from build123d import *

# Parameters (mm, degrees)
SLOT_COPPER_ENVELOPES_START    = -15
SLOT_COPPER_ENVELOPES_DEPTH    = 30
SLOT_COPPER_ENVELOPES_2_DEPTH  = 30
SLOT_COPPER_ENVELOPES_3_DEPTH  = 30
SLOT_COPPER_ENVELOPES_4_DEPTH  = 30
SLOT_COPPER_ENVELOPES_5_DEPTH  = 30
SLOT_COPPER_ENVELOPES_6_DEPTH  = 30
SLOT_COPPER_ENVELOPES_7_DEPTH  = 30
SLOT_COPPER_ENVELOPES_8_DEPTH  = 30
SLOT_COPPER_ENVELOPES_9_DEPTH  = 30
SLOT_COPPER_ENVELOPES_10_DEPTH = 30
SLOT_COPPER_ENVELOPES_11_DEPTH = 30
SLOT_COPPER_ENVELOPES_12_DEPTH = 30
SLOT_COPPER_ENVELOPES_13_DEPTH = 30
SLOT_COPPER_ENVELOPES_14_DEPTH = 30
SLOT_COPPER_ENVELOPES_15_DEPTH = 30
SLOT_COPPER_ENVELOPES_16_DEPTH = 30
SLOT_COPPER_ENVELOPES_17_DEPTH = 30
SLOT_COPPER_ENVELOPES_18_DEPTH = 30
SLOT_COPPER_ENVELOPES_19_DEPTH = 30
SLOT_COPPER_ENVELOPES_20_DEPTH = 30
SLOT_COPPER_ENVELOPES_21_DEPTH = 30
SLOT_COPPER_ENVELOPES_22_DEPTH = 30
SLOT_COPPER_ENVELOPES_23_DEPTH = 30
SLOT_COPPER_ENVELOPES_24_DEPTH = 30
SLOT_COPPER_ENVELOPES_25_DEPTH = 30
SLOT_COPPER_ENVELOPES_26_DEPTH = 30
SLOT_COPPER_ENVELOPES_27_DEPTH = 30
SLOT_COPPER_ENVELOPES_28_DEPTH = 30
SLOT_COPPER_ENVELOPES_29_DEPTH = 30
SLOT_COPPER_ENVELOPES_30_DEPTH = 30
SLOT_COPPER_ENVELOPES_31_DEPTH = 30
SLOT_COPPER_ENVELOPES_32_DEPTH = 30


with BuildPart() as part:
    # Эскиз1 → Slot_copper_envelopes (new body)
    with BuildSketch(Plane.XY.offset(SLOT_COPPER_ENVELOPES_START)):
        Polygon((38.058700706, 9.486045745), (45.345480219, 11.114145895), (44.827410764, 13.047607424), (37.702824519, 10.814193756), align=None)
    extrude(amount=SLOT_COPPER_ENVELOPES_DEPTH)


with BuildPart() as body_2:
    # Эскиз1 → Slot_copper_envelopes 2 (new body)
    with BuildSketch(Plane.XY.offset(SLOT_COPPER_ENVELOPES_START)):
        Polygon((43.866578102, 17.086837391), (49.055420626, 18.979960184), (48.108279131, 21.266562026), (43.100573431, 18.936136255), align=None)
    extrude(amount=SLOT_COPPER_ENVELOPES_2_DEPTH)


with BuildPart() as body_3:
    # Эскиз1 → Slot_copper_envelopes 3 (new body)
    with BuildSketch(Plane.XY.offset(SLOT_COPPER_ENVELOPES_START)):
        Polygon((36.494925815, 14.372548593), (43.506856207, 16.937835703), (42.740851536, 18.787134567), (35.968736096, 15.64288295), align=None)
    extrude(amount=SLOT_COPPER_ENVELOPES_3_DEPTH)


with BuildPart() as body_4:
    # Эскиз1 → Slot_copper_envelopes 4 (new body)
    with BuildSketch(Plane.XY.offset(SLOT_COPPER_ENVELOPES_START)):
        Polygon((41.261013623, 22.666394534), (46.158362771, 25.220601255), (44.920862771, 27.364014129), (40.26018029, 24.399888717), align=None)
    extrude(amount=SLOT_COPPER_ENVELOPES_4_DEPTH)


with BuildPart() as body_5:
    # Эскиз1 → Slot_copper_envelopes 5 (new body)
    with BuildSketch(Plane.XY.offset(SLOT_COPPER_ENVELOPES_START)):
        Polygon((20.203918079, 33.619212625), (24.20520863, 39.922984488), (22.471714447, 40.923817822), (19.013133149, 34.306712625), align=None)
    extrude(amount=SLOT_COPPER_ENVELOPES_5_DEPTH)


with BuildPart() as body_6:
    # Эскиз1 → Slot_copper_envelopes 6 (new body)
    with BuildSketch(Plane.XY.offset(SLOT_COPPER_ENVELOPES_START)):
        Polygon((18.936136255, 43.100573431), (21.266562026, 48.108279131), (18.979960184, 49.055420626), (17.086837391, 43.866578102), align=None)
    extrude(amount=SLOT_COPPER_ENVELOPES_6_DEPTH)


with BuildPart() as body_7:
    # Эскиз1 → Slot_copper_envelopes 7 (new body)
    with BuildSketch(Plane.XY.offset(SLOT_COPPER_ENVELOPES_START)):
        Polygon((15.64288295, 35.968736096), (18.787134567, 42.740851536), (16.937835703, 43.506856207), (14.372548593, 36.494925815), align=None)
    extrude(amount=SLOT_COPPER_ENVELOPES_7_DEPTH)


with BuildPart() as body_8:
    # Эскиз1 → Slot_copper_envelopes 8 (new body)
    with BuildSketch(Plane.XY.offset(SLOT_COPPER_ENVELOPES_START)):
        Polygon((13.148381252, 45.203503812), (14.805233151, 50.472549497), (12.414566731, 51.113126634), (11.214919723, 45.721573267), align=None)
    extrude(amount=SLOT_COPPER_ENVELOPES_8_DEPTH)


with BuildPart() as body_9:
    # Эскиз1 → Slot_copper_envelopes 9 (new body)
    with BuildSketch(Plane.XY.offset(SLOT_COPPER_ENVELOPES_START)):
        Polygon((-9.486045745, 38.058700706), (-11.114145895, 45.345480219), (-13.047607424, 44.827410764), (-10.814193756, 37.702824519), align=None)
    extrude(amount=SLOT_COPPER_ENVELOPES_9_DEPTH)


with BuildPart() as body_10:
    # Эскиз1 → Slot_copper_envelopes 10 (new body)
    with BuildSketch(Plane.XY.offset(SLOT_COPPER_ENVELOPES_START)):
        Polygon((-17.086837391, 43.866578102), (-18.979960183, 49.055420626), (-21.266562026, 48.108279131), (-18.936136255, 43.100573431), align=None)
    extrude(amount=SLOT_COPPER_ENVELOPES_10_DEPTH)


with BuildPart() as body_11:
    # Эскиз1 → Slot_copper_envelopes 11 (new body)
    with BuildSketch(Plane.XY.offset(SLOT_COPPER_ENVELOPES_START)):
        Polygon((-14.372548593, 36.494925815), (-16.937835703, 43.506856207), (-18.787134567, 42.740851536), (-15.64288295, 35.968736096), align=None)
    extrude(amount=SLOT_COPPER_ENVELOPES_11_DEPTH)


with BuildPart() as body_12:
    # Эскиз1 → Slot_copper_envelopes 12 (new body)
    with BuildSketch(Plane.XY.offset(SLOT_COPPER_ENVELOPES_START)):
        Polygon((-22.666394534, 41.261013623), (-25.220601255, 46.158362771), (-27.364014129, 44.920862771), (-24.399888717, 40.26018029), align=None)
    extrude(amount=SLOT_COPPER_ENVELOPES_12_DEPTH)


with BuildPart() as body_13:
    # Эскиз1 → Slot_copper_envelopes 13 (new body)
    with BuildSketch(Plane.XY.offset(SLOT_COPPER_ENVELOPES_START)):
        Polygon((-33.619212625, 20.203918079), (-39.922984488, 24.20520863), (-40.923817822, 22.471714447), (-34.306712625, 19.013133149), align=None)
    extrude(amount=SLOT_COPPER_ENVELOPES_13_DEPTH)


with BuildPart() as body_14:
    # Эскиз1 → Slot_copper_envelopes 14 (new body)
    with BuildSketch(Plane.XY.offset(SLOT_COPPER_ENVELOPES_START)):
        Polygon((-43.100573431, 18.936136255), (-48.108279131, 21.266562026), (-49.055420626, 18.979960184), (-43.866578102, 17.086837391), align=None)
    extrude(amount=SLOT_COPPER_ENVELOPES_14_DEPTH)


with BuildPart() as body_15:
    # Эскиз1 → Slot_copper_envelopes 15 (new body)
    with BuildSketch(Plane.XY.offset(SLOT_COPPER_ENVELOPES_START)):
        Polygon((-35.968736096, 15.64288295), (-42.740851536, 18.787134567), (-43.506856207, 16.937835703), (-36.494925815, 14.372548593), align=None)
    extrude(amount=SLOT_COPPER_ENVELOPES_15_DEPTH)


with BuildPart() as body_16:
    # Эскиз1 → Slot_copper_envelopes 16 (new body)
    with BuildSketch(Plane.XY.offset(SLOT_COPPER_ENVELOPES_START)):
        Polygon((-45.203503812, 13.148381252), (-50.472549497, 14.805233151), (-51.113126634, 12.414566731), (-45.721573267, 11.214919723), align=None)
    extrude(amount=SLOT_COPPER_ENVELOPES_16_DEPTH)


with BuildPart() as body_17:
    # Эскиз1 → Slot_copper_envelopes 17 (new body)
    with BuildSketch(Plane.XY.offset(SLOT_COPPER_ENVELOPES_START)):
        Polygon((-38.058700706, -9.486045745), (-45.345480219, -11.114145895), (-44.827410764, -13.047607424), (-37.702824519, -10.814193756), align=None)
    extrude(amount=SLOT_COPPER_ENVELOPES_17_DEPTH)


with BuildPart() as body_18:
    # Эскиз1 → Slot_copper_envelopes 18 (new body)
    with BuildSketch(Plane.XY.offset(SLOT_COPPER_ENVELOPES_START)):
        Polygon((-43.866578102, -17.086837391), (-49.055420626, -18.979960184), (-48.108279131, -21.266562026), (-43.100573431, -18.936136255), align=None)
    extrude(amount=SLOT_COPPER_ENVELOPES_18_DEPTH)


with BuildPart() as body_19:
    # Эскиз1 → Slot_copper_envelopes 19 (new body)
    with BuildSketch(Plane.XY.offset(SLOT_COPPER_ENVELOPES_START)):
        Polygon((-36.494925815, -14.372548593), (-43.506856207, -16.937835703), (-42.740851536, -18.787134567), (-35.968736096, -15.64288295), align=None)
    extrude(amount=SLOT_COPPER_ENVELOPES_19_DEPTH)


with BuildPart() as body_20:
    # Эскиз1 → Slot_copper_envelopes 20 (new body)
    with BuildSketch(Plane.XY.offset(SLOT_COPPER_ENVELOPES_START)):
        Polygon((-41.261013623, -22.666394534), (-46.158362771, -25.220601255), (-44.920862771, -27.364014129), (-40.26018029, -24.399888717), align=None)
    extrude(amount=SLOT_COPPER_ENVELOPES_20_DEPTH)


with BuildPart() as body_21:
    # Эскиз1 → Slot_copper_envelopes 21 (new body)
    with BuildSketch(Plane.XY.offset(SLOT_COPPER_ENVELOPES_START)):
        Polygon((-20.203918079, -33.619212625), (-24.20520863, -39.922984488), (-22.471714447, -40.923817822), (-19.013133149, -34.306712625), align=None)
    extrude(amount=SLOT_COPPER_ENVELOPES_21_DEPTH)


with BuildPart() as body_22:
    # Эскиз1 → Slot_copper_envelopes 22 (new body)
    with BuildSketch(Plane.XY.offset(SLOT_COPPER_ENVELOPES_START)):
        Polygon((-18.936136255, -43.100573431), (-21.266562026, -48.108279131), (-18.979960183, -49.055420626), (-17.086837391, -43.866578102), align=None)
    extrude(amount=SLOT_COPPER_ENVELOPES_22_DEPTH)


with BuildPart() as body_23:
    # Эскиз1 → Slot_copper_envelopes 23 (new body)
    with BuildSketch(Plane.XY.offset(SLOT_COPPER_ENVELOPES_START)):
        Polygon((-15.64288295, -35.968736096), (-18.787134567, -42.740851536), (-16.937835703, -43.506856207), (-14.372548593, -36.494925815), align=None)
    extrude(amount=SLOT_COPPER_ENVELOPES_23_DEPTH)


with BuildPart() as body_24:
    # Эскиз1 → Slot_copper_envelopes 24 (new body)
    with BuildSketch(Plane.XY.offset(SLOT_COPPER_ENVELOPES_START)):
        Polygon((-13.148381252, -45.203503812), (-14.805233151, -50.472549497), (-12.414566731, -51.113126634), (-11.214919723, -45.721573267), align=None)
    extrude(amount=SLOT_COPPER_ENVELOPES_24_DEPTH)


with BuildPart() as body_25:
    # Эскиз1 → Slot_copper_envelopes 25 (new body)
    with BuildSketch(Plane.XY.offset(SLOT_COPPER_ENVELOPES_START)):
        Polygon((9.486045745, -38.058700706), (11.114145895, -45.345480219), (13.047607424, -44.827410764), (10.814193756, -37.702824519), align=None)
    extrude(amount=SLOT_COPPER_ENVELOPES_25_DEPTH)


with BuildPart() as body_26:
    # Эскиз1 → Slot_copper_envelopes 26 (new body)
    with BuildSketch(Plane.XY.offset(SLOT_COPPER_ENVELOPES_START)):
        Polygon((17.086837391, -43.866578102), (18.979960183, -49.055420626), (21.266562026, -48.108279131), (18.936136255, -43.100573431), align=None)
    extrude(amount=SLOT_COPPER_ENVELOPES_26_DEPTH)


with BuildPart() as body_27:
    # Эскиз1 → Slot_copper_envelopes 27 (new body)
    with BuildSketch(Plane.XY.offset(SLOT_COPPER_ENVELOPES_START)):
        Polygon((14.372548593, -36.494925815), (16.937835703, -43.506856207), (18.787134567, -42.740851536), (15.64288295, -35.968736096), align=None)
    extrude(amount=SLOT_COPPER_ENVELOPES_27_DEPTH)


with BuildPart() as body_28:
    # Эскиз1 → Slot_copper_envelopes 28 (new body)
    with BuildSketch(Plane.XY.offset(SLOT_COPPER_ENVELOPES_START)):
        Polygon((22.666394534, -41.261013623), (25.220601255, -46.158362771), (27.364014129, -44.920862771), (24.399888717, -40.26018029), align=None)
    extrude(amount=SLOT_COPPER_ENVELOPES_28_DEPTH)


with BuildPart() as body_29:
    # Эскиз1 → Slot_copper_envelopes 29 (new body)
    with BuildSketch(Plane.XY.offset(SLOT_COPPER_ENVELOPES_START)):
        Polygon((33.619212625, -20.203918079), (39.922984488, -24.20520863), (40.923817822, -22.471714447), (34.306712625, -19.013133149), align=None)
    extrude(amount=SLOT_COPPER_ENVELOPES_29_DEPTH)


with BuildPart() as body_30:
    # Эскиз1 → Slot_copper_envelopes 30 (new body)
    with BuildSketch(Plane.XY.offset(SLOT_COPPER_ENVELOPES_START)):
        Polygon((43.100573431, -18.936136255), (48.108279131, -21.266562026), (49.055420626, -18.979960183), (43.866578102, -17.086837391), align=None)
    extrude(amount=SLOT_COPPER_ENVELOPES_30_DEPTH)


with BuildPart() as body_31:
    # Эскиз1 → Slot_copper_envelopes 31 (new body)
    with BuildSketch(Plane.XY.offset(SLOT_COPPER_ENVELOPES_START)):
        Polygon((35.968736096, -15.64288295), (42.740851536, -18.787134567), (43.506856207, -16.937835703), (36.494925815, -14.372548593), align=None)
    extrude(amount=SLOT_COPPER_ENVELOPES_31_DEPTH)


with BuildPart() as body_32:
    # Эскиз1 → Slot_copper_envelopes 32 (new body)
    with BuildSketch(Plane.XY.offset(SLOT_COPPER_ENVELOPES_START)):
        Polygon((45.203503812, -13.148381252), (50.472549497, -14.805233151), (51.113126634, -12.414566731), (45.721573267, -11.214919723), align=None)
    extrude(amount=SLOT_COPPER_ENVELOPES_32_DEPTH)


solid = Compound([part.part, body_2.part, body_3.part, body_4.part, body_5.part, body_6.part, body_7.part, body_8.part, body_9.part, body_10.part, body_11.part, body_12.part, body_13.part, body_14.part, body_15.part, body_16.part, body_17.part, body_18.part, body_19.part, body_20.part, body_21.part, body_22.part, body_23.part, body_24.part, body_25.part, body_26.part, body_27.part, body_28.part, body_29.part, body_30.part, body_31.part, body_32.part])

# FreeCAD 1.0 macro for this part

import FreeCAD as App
import Part
import Sketcher
from FreeCAD import Vector
Q = App.Units.Quantity


def add_polygon(sketch, points):
    """Adds a closed chain of lines whose ends are joined by coincident constraints."""
    first, n = sketch.GeometryCount, len(points)
    for a, b in zip(points, points[1:] + points[:1]):
        sketch.addGeometry(Part.LineSegment(App.Vector(*a, 0), App.Vector(*b, 0)), False)
    for i in range(n):
        sketch.addConstraint(Sketcher.Constraint("Coincident", first + i, 2, first + (i + 1) % n, 1))

doc = App.newDocument("Part")
body = doc.addObject("PartDesign::Body", "Body")

# Sketch on XY plane
sketch1 = body.newObject("Sketcher::SketchObject", "Sketch")
sketch1.AttachmentSupport = (doc.getObject("XY_Plane"), [""])
sketch1.MapMode = "FlatFace"
sketch1.AttachmentOffset = App.Placement(Vector(0, 0, -15), App.Rotation())
add_polygon(sketch1, [(38.1, 9.5), (45.3, 11.1), (44.8, 13), (37.7, 10.8)])  # lines 0-3
sketch1.addConstraint([
    Sketcher.Constraint("Parallel", 1, 3),
    Sketcher.Constraint("Equal", 0, 2),
    Sketcher.Constraint("Angle", 1, Q("105 deg")),
    Sketcher.Constraint("Distance", 3, 1.375),
    Sketcher.Constraint("DistanceX", -1, 1, 3, 2, 38.058701),
    Sketcher.Constraint("DistanceY", 3, 2, 0, 2, 1.6281),
    Sketcher.Constraint("Distance", 0, 7.466449),
    Sketcher.Constraint("DistanceY", -1, 1, 0, 2, 11.114146),
])
pad1 = body.newObject("PartDesign::Pad", "Pad")
pad1.Profile = sketch1
pad1.Length = 30
body2 = doc.addObject("PartDesign::Body", "Body001")

# Sketch on XY plane
sketch2 = body2.newObject("Sketcher::SketchObject", "Sketch001")
sketch2.AttachmentSupport = (doc.getObject("XY_Plane001"), [""])
sketch2.MapMode = "FlatFace"
sketch2.AttachmentOffset = App.Placement(Vector(0, 0, -15), App.Rotation())
add_polygon(sketch2, [(43.9, 17.1), (49.1, 19), (48.1, 21.3), (43.1, 18.9)])  # lines 0-3
sketch2.addConstraint([
    Sketcher.Constraint("Parallel", 1, 3),
    Sketcher.Constraint("Equal", 0, 2),
    Sketcher.Constraint("Angle", 1, Q("112.5 deg")),
    Sketcher.Constraint("Distance", 1, 2.475),
    Sketcher.Constraint("DistanceY", 3, 2, 2, 2, 1.849299),
    Sketcher.Constraint("DistanceX", 3, 2, 1, 2, 4.241701),
    Sketcher.Constraint("DistanceX", -1, 1, 0, 2, 49.055421),
    Sketcher.Constraint("DistanceY", -1, 1, 0, 2, 18.97996),
])
pad2 = body2.newObject("PartDesign::Pad", "Pad001")
pad2.Profile = sketch2
pad2.Length = 30
body3 = doc.addObject("PartDesign::Body", "Body002")

# Sketch on XY plane
sketch3 = body3.newObject("Sketcher::SketchObject", "Sketch002")
sketch3.AttachmentSupport = (doc.getObject("XY_Plane002"), [""])
sketch3.MapMode = "FlatFace"
sketch3.AttachmentOffset = App.Placement(Vector(0, 0, -15), App.Rotation())
add_polygon(sketch3, [(36.5, 14.4), (43.5, 16.9), (42.7, 18.8), (36, 15.6)])  # lines 0-3
sketch3.addConstraint([
    Sketcher.Constraint("Parallel", 1, 3),
    Sketcher.Constraint("Equal", 0, 2),
    Sketcher.Constraint("Angle", 1, Q("112.5 deg")),
    Sketcher.Constraint("Distance", 3, 1.375),
    Sketcher.Constraint("DistanceY", 0, 2, 1, 2, 1.849299),
    Sketcher.Constraint("Distance", 0, 7.466449),
    Sketcher.Constraint("DistanceX", -1, 1, 1, 2, 42.740852),
    Sketcher.Constraint("DistanceY", -1, 1, 3, 2, 14.372549),
])
pad3 = body3.newObject("PartDesign::Pad", "Pad002")
pad3.Profile = sketch3
pad3.Length = 30
body4 = doc.addObject("PartDesign::Body", "Body003")

# Sketch on XY plane
sketch4 = body4.newObject("Sketcher::SketchObject", "Sketch003")
sketch4.AttachmentSupport = (doc.getObject("XY_Plane003"), [""])
sketch4.MapMode = "FlatFace"
sketch4.AttachmentOffset = App.Placement(Vector(0, 0, -15), App.Rotation())
add_polygon(sketch4, [(41.3, 22.7), (46.2, 25.2), (44.9, 27.4), (40.3, 24.4)])  # lines 0-3
sketch4.addConstraint([
    Sketcher.Constraint("Parallel", 1, 3),
    Sketcher.Constraint("Equal", 0, 2),
    Sketcher.Constraint("Angle", 1, Q("120 deg")),
    Sketcher.Constraint("Distance", 1, 2.475),
    Sketcher.Constraint("DistanceY", -1, 1, 0, 2, 25.220601),
    Sketcher.Constraint("DistanceX", -1, 1, 2, 2, 40.26018),
    Sketcher.Constraint("DistanceY", -1, 1, 2, 2, 24.399889),
    Sketcher.Constraint("DistanceX", 3, 2, 0, 2, 4.897349),
])
pad4 = body4.newObject("PartDesign::Pad", "Pad003")
pad4.Profile = sketch4
pad4.Length = 30
body5 = doc.addObject("PartDesign::Body", "Body004")

# Sketch on XY plane
sketch5 = body5.newObject("Sketcher::SketchObject", "Sketch004")
sketch5.AttachmentSupport = (doc.getObject("XY_Plane004"), [""])
sketch5.MapMode = "FlatFace"
sketch5.AttachmentOffset = App.Placement(Vector(0, 0, -15), App.Rotation())
add_polygon(sketch5, [(20.2, 33.6), (24.2, 39.9), (22.5, 40.9), (19, 34.3)])  # lines 0-3
sketch5.addConstraint([
    Sketcher.Constraint("Parallel", 1, 3),
    Sketcher.Constraint("Equal", 0, 2),
    Sketcher.Constraint("Angle", 1, Q("150 deg")),
    Sketcher.Constraint("Distance", 3, 1.375),
    Sketcher.Constraint("Distance", 0, 7.466449),
    Sketcher.Constraint("DistanceX", -1, 1, 0, 2, 24.205209),
    Sketcher.Constraint("DistanceX", -1, 1, 3, 2, 20.203918),
    Sketcher.Constraint("DistanceY", -1, 1, 0, 2, 39.922984),
])
pad5 = body5.newObject("PartDesign::Pad", "Pad004")
pad5.Profile = sketch5
pad5.Length = 30
body6 = doc.addObject("PartDesign::Body", "Body005")

# Sketch on XY plane
sketch6 = body6.newObject("Sketcher::SketchObject", "Sketch005")
sketch6.AttachmentSupport = (doc.getObject("XY_Plane005"), [""])
sketch6.MapMode = "FlatFace"
sketch6.AttachmentOffset = App.Placement(Vector(0, 0, -15), App.Rotation())
add_polygon(sketch6, [(18.9, 43.1), (21.3, 48.1), (19, 49.1), (17.1, 43.9)])  # lines 0-3
sketch6.addConstraint([
    Sketcher.Constraint("Parallel", 1, 3),
    Sketcher.Constraint("Equal", 0, 2),
    Sketcher.Constraint("Angle", 1, Q("157.5 deg")),
    Sketcher.Constraint("Distance", 1, 2.475),
    Sketcher.Constraint("DistanceY", 2, 2, 0, 2, 4.241701),
    Sketcher.Constraint("DistanceX", 2, 2, 3, 2, 1.849299),
    Sketcher.Constraint("DistanceY", -1, 1, 0, 2, 48.108279),
    Sketcher.Constraint("DistanceX", -1, 1, 1, 2, 18.97996),
])
pad6 = body6.newObject("PartDesign::Pad", "Pad005")
pad6.Profile = sketch6
pad6.Length = 30
body7 = doc.addObject("PartDesign::Body", "Body006")

# Sketch on XY plane
sketch7 = body7.newObject("Sketcher::SketchObject", "Sketch006")
sketch7.AttachmentSupport = (doc.getObject("XY_Plane006"), [""])
sketch7.MapMode = "FlatFace"
sketch7.AttachmentOffset = App.Placement(Vector(0, 0, -15), App.Rotation())
add_polygon(sketch7, [(15.6, 36), (18.8, 42.7), (16.9, 43.5), (14.4, 36.5)])  # lines 0-3
sketch7.addConstraint([
    Sketcher.Constraint("Parallel", 1, 3),
    Sketcher.Constraint("Equal", 0, 2),
    Sketcher.Constraint("Angle", 1, Q("157.5 deg")),
    Sketcher.Constraint("Distance", 3, 1.375),
    Sketcher.Constraint("DistanceX", 1, 2, 0, 2, 1.849299),
    Sketcher.Constraint("Distance", 0, 7.466449),
    Sketcher.Constraint("DistanceY", -1, 1, 0, 2, 42.740852),
    Sketcher.Constraint("DistanceX", -1, 1, 2, 2, 14.372549),
])
pad7 = body7.newObject("PartDesign::Pad", "Pad006")
pad7.Profile = sketch7
pad7.Length = 30
body8 = doc.addObject("PartDesign::Body", "Body007")

# Sketch on XY plane
sketch8 = body8.newObject("Sketcher::SketchObject", "Sketch007")
sketch8.AttachmentSupport = (doc.getObject("XY_Plane007"), [""])
sketch8.MapMode = "FlatFace"
sketch8.AttachmentOffset = App.Placement(Vector(0, 0, -15), App.Rotation())
add_polygon(sketch8, [(13.1, 45.2), (14.8, 50.5), (12.4, 51.1), (11.2, 45.7)])  # lines 0-3
sketch8.addConstraint([
    Sketcher.Constraint("Parallel", 1, 3),
    Sketcher.Constraint("Equal", 0, 2),
    Sketcher.Constraint("Angle", 1, Q("165 deg")),
    Sketcher.Constraint("Distance", 1, 2.475),
    Sketcher.Constraint("DistanceY", -1, 1, 0, 2, 50.472549),
    Sketcher.Constraint("DistanceX", -1, 1, 2, 2, 11.21492),
    Sketcher.Constraint("DistanceX", -1, 1, 3, 2, 13.148381),
    Sketcher.Constraint("DistanceX", 3, 2, 0, 2, 1.656852),
])
pad8 = body8.newObject("PartDesign::Pad", "Pad007")
pad8.Profile = sketch8
pad8.Length = 30
body9 = doc.addObject("PartDesign::Body", "Body008")

# Sketch on XY plane
sketch9 = body9.newObject("Sketcher::SketchObject", "Sketch008")
sketch9.AttachmentSupport = (doc.getObject("XY_Plane008"), [""])
sketch9.MapMode = "FlatFace"
sketch9.AttachmentOffset = App.Placement(Vector(0, 0, -15), App.Rotation())
add_polygon(sketch9, [(-9.5, 38.1), (-11.1, 45.3), (-13, 44.8), (-10.8, 37.7)])  # lines 0-3
sketch9.addConstraint([
    Sketcher.Constraint("Parallel", 1, 3),
    Sketcher.Constraint("Equal", 0, 2),
    Sketcher.Constraint("Angle", 1, Q("-165 deg")),
    Sketcher.Constraint("Distance", 3, 1.375),
    Sketcher.Constraint("DistanceY", -1, 1, 3, 2, 38.058701),
    Sketcher.Constraint("DistanceX", 0, 2, 3, 2, 1.6281),
    Sketcher.Constraint("Distance", 0, 7.466449),
    Sketcher.Constraint("DistanceX", 0, 2, -1, 1, 11.114146),
])
pad9 = body9.newObject("PartDesign::Pad", "Pad008")
pad9.Profile = sketch9
pad9.Length = 30
body10 = doc.addObject("PartDesign::Body", "Body009")

# Sketch on XY plane
sketch10 = body10.newObject("Sketcher::SketchObject", "Sketch009")
sketch10.AttachmentSupport = (doc.getObject("XY_Plane009"), [""])
sketch10.MapMode = "FlatFace"
sketch10.AttachmentOffset = App.Placement(Vector(0, 0, -15), App.Rotation())
add_polygon(sketch10, [(-17.1, 43.9), (-19, 49.1), (-21.3, 48.1), (-18.9, 43.1)])  # lines 0-3
sketch10.addConstraint([
    Sketcher.Constraint("Parallel", 1, 3),
    Sketcher.Constraint("Equal", 0, 2),
    Sketcher.Constraint("Angle", 1, Q("-157.5 deg")),
    Sketcher.Constraint("Distance", 1, 2.475),
    Sketcher.Constraint("DistanceX", 2, 2, 3, 2, 1.849299),
    Sketcher.Constraint("DistanceY", 3, 2, 1, 2, 4.241701),
    Sketcher.Constraint("DistanceX", 0, 2, -1, 1, 18.97996),
    Sketcher.Constraint("DistanceY", -1, 1, 0, 2, 49.055421),
])
pad10 = body10.newObject("PartDesign::Pad", "Pad009")
pad10.Profile = sketch10
pad10.Length = 30
body11 = doc.addObject("PartDesign::Body", "Body010")

# Sketch on XY plane
sketch11 = body11.newObject("Sketcher::SketchObject", "Sketch010")
sketch11.AttachmentSupport = (doc.getObject("XY_Plane010"), [""])
sketch11.MapMode = "FlatFace"
sketch11.AttachmentOffset = App.Placement(Vector(0, 0, -15), App.Rotation())
add_polygon(sketch11, [(-14.4, 36.5), (-16.9, 43.5), (-18.8, 42.7), (-15.6, 36)])  # lines 0-3
sketch11.addConstraint([
    Sketcher.Constraint("Parallel", 1, 3),
    Sketcher.Constraint("Equal", 0, 2),
    Sketcher.Constraint("Angle", 1, Q("-157.5 deg")),
    Sketcher.Constraint("Distance", 3, 1.375),
    Sketcher.Constraint("DistanceX", 1, 2, 0, 2, 1.849299),
    Sketcher.Constraint("Distance", 0, 7.466449),
    Sketcher.Constraint("DistanceY", -1, 1, 1, 2, 42.740852),
    Sketcher.Constraint("DistanceX", 3, 2, -1, 1, 14.372549),
])
pad11 = body11.newObject("PartDesign::Pad", "Pad010")
pad11.Profile = sketch11
pad11.Length = 30
body12 = doc.addObject("PartDesign::Body", "Body011")

# Sketch on XY plane
sketch12 = body12.newObject("Sketcher::SketchObject", "Sketch011")
sketch12.AttachmentSupport = (doc.getObject("XY_Plane011"), [""])
sketch12.MapMode = "FlatFace"
sketch12.AttachmentOffset = App.Placement(Vector(0, 0, -15), App.Rotation())
add_polygon(sketch12, [(-22.7, 41.3), (-25.2, 46.2), (-27.4, 44.9), (-24.4, 40.3)])  # lines 0-3
sketch12.addConstraint([
    Sketcher.Constraint("Parallel", 1, 3),
    Sketcher.Constraint("Equal", 0, 2),
    Sketcher.Constraint("Angle", 1, Q("-150 deg")),
    Sketcher.Constraint("Distance", 1, 2.475),
    Sketcher.Constraint("DistanceX", 0, 2, -1, 1, 25.220601),
    Sketcher.Constraint("DistanceX", 2, 2, -1, 1, 24.399889),
    Sketcher.Constraint("DistanceY", -1, 1, 2, 2, 40.26018),
    Sketcher.Constraint("DistanceY", 3, 2, 0, 2, 4.897349),
])
pad12 = body12.newObject("PartDesign::Pad", "Pad011")
pad12.Profile = sketch12
pad12.Length = 30
body13 = doc.addObject("PartDesign::Body", "Body012")

# Sketch on XY plane
sketch13 = body13.newObject("Sketcher::SketchObject", "Sketch012")
sketch13.AttachmentSupport = (doc.getObject("XY_Plane012"), [""])
sketch13.MapMode = "FlatFace"
sketch13.AttachmentOffset = App.Placement(Vector(0, 0, -15), App.Rotation())
add_polygon(sketch13, [(-33.6, 20.2), (-39.9, 24.2), (-40.9, 22.5), (-34.3, 19)])  # lines 0-3
sketch13.addConstraint([
    Sketcher.Constraint("Parallel", 1, 3),
    Sketcher.Constraint("Equal", 0, 2),
    Sketcher.Constraint("Angle", 1, Q("-120 deg")),
    Sketcher.Constraint("Distance", 3, 1.375),
    Sketcher.Constraint("Distance", 0, 7.466449),
    Sketcher.Constraint("DistanceY", -1, 1, 0, 2, 24.205209),
    Sketcher.Constraint("DistanceY", -1, 1, 3, 2, 20.203918),
    Sketcher.Constraint("DistanceX", 0, 2, -1, 1, 39.922984),
])
pad13 = body13.newObject("PartDesign::Pad", "Pad012")
pad13.Profile = sketch13
pad13.Length = 30
body14 = doc.addObject("PartDesign::Body", "Body013")

# Sketch on XY plane
sketch14 = body14.newObject("Sketcher::SketchObject", "Sketch013")
sketch14.AttachmentSupport = (doc.getObject("XY_Plane013"), [""])
sketch14.MapMode = "FlatFace"
sketch14.AttachmentOffset = App.Placement(Vector(0, 0, -15), App.Rotation())
add_polygon(sketch14, [(-43.1, 18.9), (-48.1, 21.3), (-49.1, 19), (-43.9, 17.1)])  # lines 0-3
sketch14.addConstraint([
    Sketcher.Constraint("Parallel", 1, 3),
    Sketcher.Constraint("Equal", 0, 2),
    Sketcher.Constraint("Angle", 1, Q("-112.5 deg")),
    Sketcher.Constraint("Distance", 1, 2.475),
    Sketcher.Constraint("DistanceX", 0, 2, 2, 2, 4.241701),
    Sketcher.Constraint("DistanceY", 2, 2, 3, 2, 1.849299),
    Sketcher.Constraint("DistanceX", 0, 2, -1, 1, 48.108279),
    Sketcher.Constraint("DistanceY", -1, 1, 1, 2, 18.97996),
])
pad14 = body14.newObject("PartDesign::Pad", "Pad013")
pad14.Profile = sketch14
pad14.Length = 30
body15 = doc.addObject("PartDesign::Body", "Body014")

# Sketch on XY plane
sketch15 = body15.newObject("Sketcher::SketchObject", "Sketch014")
sketch15.AttachmentSupport = (doc.getObject("XY_Plane014"), [""])
sketch15.MapMode = "FlatFace"
sketch15.AttachmentOffset = App.Placement(Vector(0, 0, -15), App.Rotation())
add_polygon(sketch15, [(-36, 15.6), (-42.7, 18.8), (-43.5, 16.9), (-36.5, 14.4)])  # lines 0-3
sketch15.addConstraint([
    Sketcher.Constraint("Parallel", 1, 3),
    Sketcher.Constraint("Equal", 0, 2),
    Sketcher.Constraint("Angle", 1, Q("-112.5 deg")),
    Sketcher.Constraint("Distance", 3, 1.375),
    Sketcher.Constraint("DistanceY", 1, 2, 0, 2, 1.849299),
    Sketcher.Constraint("Distance", 0, 7.466449),
    Sketcher.Constraint("DistanceX", 0, 2, -1, 1, 42.740852),
    Sketcher.Constraint("DistanceY", -1, 1, 2, 2, 14.372549),
])
pad15 = body15.newObject("PartDesign::Pad", "Pad014")
pad15.Profile = sketch15
pad15.Length = 30
body16 = doc.addObject("PartDesign::Body", "Body015")

# Sketch on XY plane
sketch16 = body16.newObject("Sketcher::SketchObject", "Sketch015")
sketch16.AttachmentSupport = (doc.getObject("XY_Plane015"), [""])
sketch16.MapMode = "FlatFace"
sketch16.AttachmentOffset = App.Placement(Vector(0, 0, -15), App.Rotation())
add_polygon(sketch16, [(-45.2, 13.1), (-50.5, 14.8), (-51.1, 12.4), (-45.7, 11.2)])  # lines 0-3
sketch16.addConstraint([
    Sketcher.Constraint("Parallel", 1, 3),
    Sketcher.Constraint("Equal", 0, 2),
    Sketcher.Constraint("Angle", 1, Q("-105 deg")),
    Sketcher.Constraint("Distance", 1, 2.475),
    Sketcher.Constraint("DistanceX", 0, 2, -1, 1, 50.472549),
    Sketcher.Constraint("DistanceY", -1, 1, 2, 2, 11.21492),
    Sketcher.Constraint("DistanceY", -1, 1, 3, 2, 13.148381),
    Sketcher.Constraint("DistanceY", 3, 2, 0, 2, 1.656852),
])
pad16 = body16.newObject("PartDesign::Pad", "Pad015")
pad16.Profile = sketch16
pad16.Length = 30
body17 = doc.addObject("PartDesign::Body", "Body016")

# Sketch on XY plane
sketch17 = body17.newObject("Sketcher::SketchObject", "Sketch016")
sketch17.AttachmentSupport = (doc.getObject("XY_Plane016"), [""])
sketch17.MapMode = "FlatFace"
sketch17.AttachmentOffset = App.Placement(Vector(0, 0, -15), App.Rotation())
add_polygon(sketch17, [(-38.1, -9.5), (-45.3, -11.1), (-44.8, -13), (-37.7, -10.8)])  # lines 0-3
sketch17.addConstraint([
    Sketcher.Constraint("Parallel", 1, 3),
    Sketcher.Constraint("Equal", 0, 2),
    Sketcher.Constraint("Angle", 1, Q("-75 deg")),
    Sketcher.Constraint("Distance", 3, 1.375),
    Sketcher.Constraint("DistanceX", 3, 2, -1, 1, 38.058701),
    Sketcher.Constraint("DistanceY", 0, 2, 3, 2, 1.6281),
    Sketcher.Constraint("Distance", 0, 7.466449),
    Sketcher.Constraint("DistanceY", 0, 2, -1, 1, 11.114146),
])
pad17 = body17.newObject("PartDesign::Pad", "Pad016")
pad17.Profile = sketch17
pad17.Length = 30
body18 = doc.addObject("PartDesign::Body", "Body017")

# Sketch on XY plane
sketch18 = body18.newObject("Sketcher::SketchObject", "Sketch017")
sketch18.AttachmentSupport = (doc.getObject("XY_Plane017"), [""])
sketch18.MapMode = "FlatFace"
sketch18.AttachmentOffset = App.Placement(Vector(0, 0, -15), App.Rotation())
add_polygon(sketch18, [(-43.9, -17.1), (-49.1, -19), (-48.1, -21.3), (-43.1, -18.9)])  # lines 0-3
sketch18.addConstraint([
    Sketcher.Constraint("Parallel", 1, 3),
    Sketcher.Constraint("Equal", 0, 2),
    Sketcher.Constraint("Angle", 1, Q("-67.5 deg")),
    Sketcher.Constraint("Distance", 1, 2.475),
    Sketcher.Constraint("DistanceY", 2, 2, 3, 2, 1.849299),
    Sketcher.Constraint("DistanceX", 1, 2, 3, 2, 4.241701),
    Sketcher.Constraint("DistanceX", 0, 2, -1, 1, 49.055421),
    Sketcher.Constraint("DistanceY", 0, 2, -1, 1, 18.97996),
])
pad18 = body18.newObject("PartDesign::Pad", "Pad017")
pad18.Profile = sketch18
pad18.Length = 30
body19 = doc.addObject("PartDesign::Body", "Body018")

# Sketch on XY plane
sketch19 = body19.newObject("Sketcher::SketchObject", "Sketch018")
sketch19.AttachmentSupport = (doc.getObject("XY_Plane018"), [""])
sketch19.MapMode = "FlatFace"
sketch19.AttachmentOffset = App.Placement(Vector(0, 0, -15), App.Rotation())
add_polygon(sketch19, [(-36.5, -14.4), (-43.5, -16.9), (-42.7, -18.8), (-36, -15.6)])  # lines 0-3
sketch19.addConstraint([
    Sketcher.Constraint("Parallel", 1, 3),
    Sketcher.Constraint("Equal", 0, 2),
    Sketcher.Constraint("Angle", 1, Q("-67.5 deg")),
    Sketcher.Constraint("Distance", 3, 1.375),
    Sketcher.Constraint("DistanceY", 1, 2, 0, 2, 1.849299),
    Sketcher.Constraint("Distance", 0, 7.466449),
    Sketcher.Constraint("DistanceX", 1, 2, -1, 1, 42.740852),
    Sketcher.Constraint("DistanceY", 3, 2, -1, 1, 14.372549),
])
pad19 = body19.newObject("PartDesign::Pad", "Pad018")
pad19.Profile = sketch19
pad19.Length = 30
body20 = doc.addObject("PartDesign::Body", "Body019")

# Sketch on XY plane
sketch20 = body20.newObject("Sketcher::SketchObject", "Sketch019")
sketch20.AttachmentSupport = (doc.getObject("XY_Plane019"), [""])
sketch20.MapMode = "FlatFace"
sketch20.AttachmentOffset = App.Placement(Vector(0, 0, -15), App.Rotation())
add_polygon(sketch20, [(-41.3, -22.7), (-46.2, -25.2), (-44.9, -27.4), (-40.3, -24.4)])  # lines 0-3
sketch20.addConstraint([
    Sketcher.Constraint("Parallel", 1, 3),
    Sketcher.Constraint("Equal", 0, 2),
    Sketcher.Constraint("Angle", 1, Q("-60 deg")),
    Sketcher.Constraint("Distance", 1, 2.475),
    Sketcher.Constraint("DistanceY", 0, 2, -1, 1, 25.220601),
    Sketcher.Constraint("DistanceX", 2, 2, -1, 1, 40.26018),
    Sketcher.Constraint("DistanceY", 2, 2, -1, 1, 24.399889),
    Sketcher.Constraint("DistanceX", 0, 2, 3, 2, 4.897349),
])
pad20 = body20.newObject("PartDesign::Pad", "Pad019")
pad20.Profile = sketch20
pad20.Length = 30
body21 = doc.addObject("PartDesign::Body", "Body020")

# Sketch on XY plane
sketch21 = body21.newObject("Sketcher::SketchObject", "Sketch020")
sketch21.AttachmentSupport = (doc.getObject("XY_Plane020"), [""])
sketch21.MapMode = "FlatFace"
sketch21.AttachmentOffset = App.Placement(Vector(0, 0, -15), App.Rotation())
add_polygon(sketch21, [(-20.2, -33.6), (-24.2, -39.9), (-22.5, -40.9), (-19, -34.3)])  # lines 0-3
sketch21.addConstraint([
    Sketcher.Constraint("Parallel", 1, 3),
    Sketcher.Constraint("Equal", 0, 2),
    Sketcher.Constraint("Angle", 1, Q("-30 deg")),
    Sketcher.Constraint("Distance", 3, 1.375),
    Sketcher.Constraint("Distance", 0, 7.466449),
    Sketcher.Constraint("DistanceX", 0, 2, -1, 1, 24.205209),
    Sketcher.Constraint("DistanceX", 3, 2, -1, 1, 20.203918),
    Sketcher.Constraint("DistanceY", 0, 2, -1, 1, 39.922984),
])
pad21 = body21.newObject("PartDesign::Pad", "Pad020")
pad21.Profile = sketch21
pad21.Length = 30
body22 = doc.addObject("PartDesign::Body", "Body021")

# Sketch on XY plane
sketch22 = body22.newObject("Sketcher::SketchObject", "Sketch021")
sketch22.AttachmentSupport = (doc.getObject("XY_Plane021"), [""])
sketch22.MapMode = "FlatFace"
sketch22.AttachmentOffset = App.Placement(Vector(0, 0, -15), App.Rotation())
add_polygon(sketch22, [(-18.9, -43.1), (-21.3, -48.1), (-19, -49.1), (-17.1, -43.9)])  # lines 0-3
sketch22.addConstraint([
    Sketcher.Constraint("Parallel", 1, 3),
    Sketcher.Constraint("Equal", 0, 2),
    Sketcher.Constraint("Angle", 1, Q("-22.5 deg")),
    Sketcher.Constraint("Distance", 1, 2.475),
    Sketcher.Constraint("DistanceY", 0, 2, 2, 2, 4.241701),
    Sketcher.Constraint("DistanceX", 3, 2, 2, 2, 1.849299),
    Sketcher.Constraint("DistanceY", 0, 2, -1, 1, 48.108279),
    Sketcher.Constraint("DistanceX", 1, 2, -1, 1, 18.97996),
])
pad22 = body22.newObject("PartDesign::Pad", "Pad021")
pad22.Profile = sketch22
pad22.Length = 30
body23 = doc.addObject("PartDesign::Body", "Body022")

# Sketch on XY plane
sketch23 = body23.newObject("Sketcher::SketchObject", "Sketch022")
sketch23.AttachmentSupport = (doc.getObject("XY_Plane022"), [""])
sketch23.MapMode = "FlatFace"
sketch23.AttachmentOffset = App.Placement(Vector(0, 0, -15), App.Rotation())
add_polygon(sketch23, [(-15.6, -36), (-18.8, -42.7), (-16.9, -43.5), (-14.4, -36.5)])  # lines 0-3
sketch23.addConstraint([
    Sketcher.Constraint("Parallel", 1, 3),
    Sketcher.Constraint("Equal", 0, 2),
    Sketcher.Constraint("Angle", 1, Q("-22.5 deg")),
    Sketcher.Constraint("Distance", 3, 1.375),
    Sketcher.Constraint("DistanceX", 0, 2, 1, 2, 1.849299),
    Sketcher.Constraint("Distance", 0, 7.466449),
    Sketcher.Constraint("DistanceY", 0, 2, -1, 1, 42.740852),
    Sketcher.Constraint("DistanceX", 2, 2, -1, 1, 14.372549),
])
pad23 = body23.newObject("PartDesign::Pad", "Pad022")
pad23.Profile = sketch23
pad23.Length = 30
body24 = doc.addObject("PartDesign::Body", "Body023")

# Sketch on XY plane
sketch24 = body24.newObject("Sketcher::SketchObject", "Sketch023")
sketch24.AttachmentSupport = (doc.getObject("XY_Plane023"), [""])
sketch24.MapMode = "FlatFace"
sketch24.AttachmentOffset = App.Placement(Vector(0, 0, -15), App.Rotation())
add_polygon(sketch24, [(-13.1, -45.2), (-14.8, -50.5), (-12.4, -51.1), (-11.2, -45.7)])  # lines 0-3
sketch24.addConstraint([
    Sketcher.Constraint("Parallel", 1, 3),
    Sketcher.Constraint("Equal", 0, 2),
    Sketcher.Constraint("Angle", 1, Q("-15 deg")),
    Sketcher.Constraint("Distance", 1, 2.475),
    Sketcher.Constraint("DistanceY", 0, 2, -1, 1, 50.472549),
    Sketcher.Constraint("DistanceX", 2, 2, -1, 1, 11.21492),
    Sketcher.Constraint("DistanceX", 3, 2, -1, 1, 13.148381),
    Sketcher.Constraint("DistanceX", 0, 2, 3, 2, 1.656852),
])
pad24 = body24.newObject("PartDesign::Pad", "Pad023")
pad24.Profile = sketch24
pad24.Length = 30
body25 = doc.addObject("PartDesign::Body", "Body024")

# Sketch on XY plane
sketch25 = body25.newObject("Sketcher::SketchObject", "Sketch024")
sketch25.AttachmentSupport = (doc.getObject("XY_Plane024"), [""])
sketch25.MapMode = "FlatFace"
sketch25.AttachmentOffset = App.Placement(Vector(0, 0, -15), App.Rotation())
add_polygon(sketch25, [(9.5, -38.1), (11.1, -45.3), (13, -44.8), (10.8, -37.7)])  # lines 0-3
sketch25.addConstraint([
    Sketcher.Constraint("Parallel", 1, 3),
    Sketcher.Constraint("Equal", 0, 2),
    Sketcher.Constraint("Angle", 1, Q("15 deg")),
    Sketcher.Constraint("Distance", 3, 1.375),
    Sketcher.Constraint("DistanceY", 3, 2, -1, 1, 38.058701),
    Sketcher.Constraint("DistanceX", 3, 2, 0, 2, 1.6281),
    Sketcher.Constraint("Distance", 0, 7.466449),
    Sketcher.Constraint("DistanceX", -1, 1, 0, 2, 11.114146),
])
pad25 = body25.newObject("PartDesign::Pad", "Pad024")
pad25.Profile = sketch25
pad25.Length = 30
body26 = doc.addObject("PartDesign::Body", "Body025")

# Sketch on XY plane
sketch26 = body26.newObject("Sketcher::SketchObject", "Sketch025")
sketch26.AttachmentSupport = (doc.getObject("XY_Plane025"), [""])
sketch26.MapMode = "FlatFace"
sketch26.AttachmentOffset = App.Placement(Vector(0, 0, -15), App.Rotation())
add_polygon(sketch26, [(17.1, -43.9), (19, -49.1), (21.3, -48.1), (18.9, -43.1)])  # lines 0-3
sketch26.addConstraint([
    Sketcher.Constraint("Parallel", 1, 3),
    Sketcher.Constraint("Equal", 0, 2),
    Sketcher.Constraint("Angle", 1, Q("22.5 deg")),
    Sketcher.Constraint("Distance", 1, 2.475),
    Sketcher.Constraint("DistanceX", 3, 2, 2, 2, 1.849299),
    Sketcher.Constraint("DistanceY", 1, 2, 3, 2, 4.241701),
    Sketcher.Constraint("DistanceX", -1, 1, 0, 2, 18.97996),
    Sketcher.Constraint("DistanceY", 0, 2, -1, 1, 49.055421),
])
pad26 = body26.newObject("PartDesign::Pad", "Pad025")
pad26.Profile = sketch26
pad26.Length = 30
body27 = doc.addObject("PartDesign::Body", "Body026")

# Sketch on XY plane
sketch27 = body27.newObject("Sketcher::SketchObject", "Sketch026")
sketch27.AttachmentSupport = (doc.getObject("XY_Plane026"), [""])
sketch27.MapMode = "FlatFace"
sketch27.AttachmentOffset = App.Placement(Vector(0, 0, -15), App.Rotation())
add_polygon(sketch27, [(14.4, -36.5), (16.9, -43.5), (18.8, -42.7), (15.6, -36)])  # lines 0-3
sketch27.addConstraint([
    Sketcher.Constraint("Parallel", 1, 3),
    Sketcher.Constraint("Equal", 0, 2),
    Sketcher.Constraint("Angle", 1, Q("22.5 deg")),
    Sketcher.Constraint("Distance", 3, 1.375),
    Sketcher.Constraint("DistanceX", 0, 2, 1, 2, 1.849299),
    Sketcher.Constraint("Distance", 0, 7.466449),
    Sketcher.Constraint("DistanceY", 1, 2, -1, 1, 42.740852),
    Sketcher.Constraint("DistanceX", -1, 1, 3, 2, 14.372549),
])
pad27 = body27.newObject("PartDesign::Pad", "Pad026")
pad27.Profile = sketch27
pad27.Length = 30
body28 = doc.addObject("PartDesign::Body", "Body027")

# Sketch on XY plane
sketch28 = body28.newObject("Sketcher::SketchObject", "Sketch027")
sketch28.AttachmentSupport = (doc.getObject("XY_Plane027"), [""])
sketch28.MapMode = "FlatFace"
sketch28.AttachmentOffset = App.Placement(Vector(0, 0, -15), App.Rotation())
add_polygon(sketch28, [(22.7, -41.3), (25.2, -46.2), (27.4, -44.9), (24.4, -40.3)])  # lines 0-3
sketch28.addConstraint([
    Sketcher.Constraint("Parallel", 1, 3),
    Sketcher.Constraint("Equal", 0, 2),
    Sketcher.Constraint("Angle", 1, Q("30 deg")),
    Sketcher.Constraint("Distance", 1, 2.475),
    Sketcher.Constraint("DistanceX", -1, 1, 0, 2, 25.220601),
    Sketcher.Constraint("DistanceX", -1, 1, 2, 2, 24.399889),
    Sketcher.Constraint("DistanceY", 2, 2, -1, 1, 40.26018),
    Sketcher.Constraint("DistanceY", 0, 2, 3, 2, 4.897349),
])
pad28 = body28.newObject("PartDesign::Pad", "Pad027")
pad28.Profile = sketch28
pad28.Length = 30
body29 = doc.addObject("PartDesign::Body", "Body028")

# Sketch on XY plane
sketch29 = body29.newObject("Sketcher::SketchObject", "Sketch028")
sketch29.AttachmentSupport = (doc.getObject("XY_Plane028"), [""])
sketch29.MapMode = "FlatFace"
sketch29.AttachmentOffset = App.Placement(Vector(0, 0, -15), App.Rotation())
add_polygon(sketch29, [(33.6, -20.2), (39.9, -24.2), (40.9, -22.5), (34.3, -19)])  # lines 0-3
sketch29.addConstraint([
    Sketcher.Constraint("Parallel", 1, 3),
    Sketcher.Constraint("Equal", 0, 2),
    Sketcher.Constraint("Angle", 1, Q("60 deg")),
    Sketcher.Constraint("Distance", 3, 1.375),
    Sketcher.Constraint("Distance", 0, 7.466449),
    Sketcher.Constraint("DistanceY", 0, 2, -1, 1, 24.205209),
    Sketcher.Constraint("DistanceY", 3, 2, -1, 1, 20.203918),
    Sketcher.Constraint("DistanceX", -1, 1, 0, 2, 39.922984),
])
pad29 = body29.newObject("PartDesign::Pad", "Pad028")
pad29.Profile = sketch29
pad29.Length = 30
body30 = doc.addObject("PartDesign::Body", "Body029")

# Sketch on XY plane
sketch30 = body30.newObject("Sketcher::SketchObject", "Sketch029")
sketch30.AttachmentSupport = (doc.getObject("XY_Plane029"), [""])
sketch30.MapMode = "FlatFace"
sketch30.AttachmentOffset = App.Placement(Vector(0, 0, -15), App.Rotation())
add_polygon(sketch30, [(43.1, -18.9), (48.1, -21.3), (49.1, -19), (43.9, -17.1)])  # lines 0-3
sketch30.addConstraint([
    Sketcher.Constraint("Parallel", 1, 3),
    Sketcher.Constraint("Equal", 0, 2),
    Sketcher.Constraint("Angle", 1, Q("67.5 deg")),
    Sketcher.Constraint("Distance", 1, 2.475),
    Sketcher.Constraint("DistanceX", 2, 2, 0, 2, 4.241701),
    Sketcher.Constraint("DistanceY", 3, 2, 2, 2, 1.849299),
    Sketcher.Constraint("DistanceX", -1, 1, 0, 2, 48.108279),
    Sketcher.Constraint("DistanceY", 1, 2, -1, 1, 18.97996),
])
pad30 = body30.newObject("PartDesign::Pad", "Pad029")
pad30.Profile = sketch30
pad30.Length = 30
body31 = doc.addObject("PartDesign::Body", "Body030")

# Sketch on XY plane
sketch31 = body31.newObject("Sketcher::SketchObject", "Sketch030")
sketch31.AttachmentSupport = (doc.getObject("XY_Plane030"), [""])
sketch31.MapMode = "FlatFace"
sketch31.AttachmentOffset = App.Placement(Vector(0, 0, -15), App.Rotation())
add_polygon(sketch31, [(36, -15.6), (42.7, -18.8), (43.5, -16.9), (36.5, -14.4)])  # lines 0-3
sketch31.addConstraint([
    Sketcher.Constraint("Parallel", 1, 3),
    Sketcher.Constraint("Equal", 0, 2),
    Sketcher.Constraint("Angle", 1, Q("67.5 deg")),
    Sketcher.Constraint("Distance", 3, 1.375),
    Sketcher.Constraint("DistanceY", 0, 2, 1, 2, 1.849299),
    Sketcher.Constraint("Distance", 0, 7.466449),
    Sketcher.Constraint("DistanceX", -1, 1, 0, 2, 42.740852),
    Sketcher.Constraint("DistanceY", 2, 2, -1, 1, 14.372549),
])
pad31 = body31.newObject("PartDesign::Pad", "Pad030")
pad31.Profile = sketch31
pad31.Length = 30
body32 = doc.addObject("PartDesign::Body", "Body031")

# Sketch on XY plane
sketch32 = body32.newObject("Sketcher::SketchObject", "Sketch031")
sketch32.AttachmentSupport = (doc.getObject("XY_Plane031"), [""])
sketch32.MapMode = "FlatFace"
sketch32.AttachmentOffset = App.Placement(Vector(0, 0, -15), App.Rotation())
add_polygon(sketch32, [(45.2, -13.1), (50.5, -14.8), (51.1, -12.4), (45.7, -11.2)])  # lines 0-3
sketch32.addConstraint([
    Sketcher.Constraint("Parallel", 1, 3),
    Sketcher.Constraint("Equal", 0, 2),
    Sketcher.Constraint("Angle", 1, Q("75 deg")),
    Sketcher.Constraint("Distance", 1, 2.475),
    Sketcher.Constraint("DistanceX", -1, 1, 0, 2, 50.472549),
    Sketcher.Constraint("DistanceY", 2, 2, -1, 1, 11.21492),
    Sketcher.Constraint("DistanceY", 3, 2, -1, 1, 13.148381),
    Sketcher.Constraint("DistanceY", 0, 2, 3, 2, 1.656852),
])
pad32 = body32.newObject("PartDesign::Pad", "Pad031")
pad32.Profile = sketch32
pad32.Length = 30

doc.recompute()
